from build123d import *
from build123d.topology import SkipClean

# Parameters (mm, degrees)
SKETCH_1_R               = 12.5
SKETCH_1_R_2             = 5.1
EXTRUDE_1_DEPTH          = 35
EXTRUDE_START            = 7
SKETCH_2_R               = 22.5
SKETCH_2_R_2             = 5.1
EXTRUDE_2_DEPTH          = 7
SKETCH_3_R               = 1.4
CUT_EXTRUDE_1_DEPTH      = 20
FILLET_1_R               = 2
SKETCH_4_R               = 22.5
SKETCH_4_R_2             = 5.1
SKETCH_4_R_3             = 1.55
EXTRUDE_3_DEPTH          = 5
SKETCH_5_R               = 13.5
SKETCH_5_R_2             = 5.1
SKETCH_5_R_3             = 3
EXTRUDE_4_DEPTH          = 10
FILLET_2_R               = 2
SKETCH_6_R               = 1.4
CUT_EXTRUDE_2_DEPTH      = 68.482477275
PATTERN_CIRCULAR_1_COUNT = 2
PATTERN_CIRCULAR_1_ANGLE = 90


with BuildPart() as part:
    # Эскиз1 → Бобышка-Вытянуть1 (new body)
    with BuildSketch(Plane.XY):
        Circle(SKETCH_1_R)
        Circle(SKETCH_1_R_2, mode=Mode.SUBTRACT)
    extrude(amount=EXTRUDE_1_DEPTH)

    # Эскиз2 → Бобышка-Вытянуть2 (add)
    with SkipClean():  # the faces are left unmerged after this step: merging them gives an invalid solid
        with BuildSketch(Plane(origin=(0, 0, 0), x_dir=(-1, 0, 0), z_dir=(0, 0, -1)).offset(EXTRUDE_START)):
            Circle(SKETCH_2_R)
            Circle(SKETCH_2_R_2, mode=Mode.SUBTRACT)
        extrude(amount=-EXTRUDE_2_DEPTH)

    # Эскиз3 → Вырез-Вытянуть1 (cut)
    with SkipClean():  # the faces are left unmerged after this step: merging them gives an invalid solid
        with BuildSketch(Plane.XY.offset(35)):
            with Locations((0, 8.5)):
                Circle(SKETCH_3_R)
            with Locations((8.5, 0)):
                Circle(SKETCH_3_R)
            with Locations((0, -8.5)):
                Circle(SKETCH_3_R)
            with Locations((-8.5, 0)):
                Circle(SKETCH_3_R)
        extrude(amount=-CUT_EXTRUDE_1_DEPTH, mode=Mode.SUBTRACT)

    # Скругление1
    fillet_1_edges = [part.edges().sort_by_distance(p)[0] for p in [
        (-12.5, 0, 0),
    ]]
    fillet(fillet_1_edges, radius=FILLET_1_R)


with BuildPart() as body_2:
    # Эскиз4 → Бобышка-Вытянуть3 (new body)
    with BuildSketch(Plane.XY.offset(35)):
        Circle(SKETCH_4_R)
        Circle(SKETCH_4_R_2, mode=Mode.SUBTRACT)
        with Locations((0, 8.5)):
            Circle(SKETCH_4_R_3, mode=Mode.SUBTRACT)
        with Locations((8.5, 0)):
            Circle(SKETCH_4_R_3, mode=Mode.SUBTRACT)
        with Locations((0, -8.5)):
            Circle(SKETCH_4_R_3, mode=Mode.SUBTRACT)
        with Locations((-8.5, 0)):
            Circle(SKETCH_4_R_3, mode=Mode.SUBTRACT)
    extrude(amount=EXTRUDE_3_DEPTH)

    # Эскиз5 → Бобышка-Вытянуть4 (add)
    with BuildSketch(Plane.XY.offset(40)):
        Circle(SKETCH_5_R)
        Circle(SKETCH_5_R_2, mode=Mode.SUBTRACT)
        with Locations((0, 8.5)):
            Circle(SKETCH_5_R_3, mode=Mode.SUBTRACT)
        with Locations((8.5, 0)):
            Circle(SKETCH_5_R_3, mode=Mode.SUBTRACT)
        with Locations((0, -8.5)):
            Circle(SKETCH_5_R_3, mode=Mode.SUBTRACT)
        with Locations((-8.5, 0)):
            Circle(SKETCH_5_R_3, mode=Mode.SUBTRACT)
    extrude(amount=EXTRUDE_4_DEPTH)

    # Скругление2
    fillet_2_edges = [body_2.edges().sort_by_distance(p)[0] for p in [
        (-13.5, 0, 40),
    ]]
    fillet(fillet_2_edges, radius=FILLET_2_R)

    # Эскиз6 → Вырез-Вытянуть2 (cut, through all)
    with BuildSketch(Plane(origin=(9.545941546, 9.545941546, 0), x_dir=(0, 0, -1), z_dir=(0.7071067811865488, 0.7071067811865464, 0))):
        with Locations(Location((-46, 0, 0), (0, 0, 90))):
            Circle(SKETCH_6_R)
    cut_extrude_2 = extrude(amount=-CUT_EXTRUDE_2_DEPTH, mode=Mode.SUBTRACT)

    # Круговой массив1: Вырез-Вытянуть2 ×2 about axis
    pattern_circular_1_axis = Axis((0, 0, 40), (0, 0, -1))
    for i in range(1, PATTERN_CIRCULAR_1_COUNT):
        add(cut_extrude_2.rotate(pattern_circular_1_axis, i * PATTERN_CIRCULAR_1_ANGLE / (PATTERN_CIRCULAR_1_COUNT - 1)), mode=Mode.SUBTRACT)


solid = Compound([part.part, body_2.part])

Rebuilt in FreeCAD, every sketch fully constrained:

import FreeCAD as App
import Part
import Sketcher
from FreeCAD import Vector
Q = App.Units.Quantity


def edges_at(feature, points):
    """Names of the edges that pass closest to the given points."""
    edges = feature.Shape.Edges
    near = lambda p: min(range(len(edges)), key=lambda i: edges[i].distToShape(Part.Vertex(*p))[0])
    return sorted({f"Edge{near(p) + 1}" for p in points})

doc = App.newDocument("Part")
body = doc.addObject("PartDesign::Body", "Body")

# Sketch on XY plane
sketch1 = body.newObject("Sketcher::SketchObject", "Sketch")
sketch1.AttachmentSupport = (doc.getObject("XY_Plane"), [""])
sketch1.MapMode = "FlatFace"
sketch1.addGeometry(Part.Circle(Vector(0, 0, 0), Vector(0, 0, 1), 12), False)
sketch1.addGeometry(Part.Circle(Vector(0, 0, 0), Vector(0, 0, 1), 5), False)
sketch1.addConstraint(Sketcher.Constraint("Coincident", 0, 3, -1, 1))
sketch1.addConstraint(Sketcher.Constraint("Coincident", 1, 3, -1, 1))
sketch1.addConstraint(Sketcher.Constraint("Diameter", 0, Q("25 mm")))
sketch1.addConstraint(Sketcher.Constraint("Diameter", 1, Q("10.2 mm")))
pad1 = body.newObject("PartDesign::Pad", "Pad")
pad1.Profile = sketch1
pad1.Length = 35

# Sketch on XY plane
sketch2 = body.newObject("Sketcher::SketchObject", "Sketch001")
sketch2.AttachmentSupport = (doc.getObject("XY_Plane"), [""])
sketch2.MapMode = "FlatFace"
sketch2.AttachmentOffset = App.Placement(Vector(0, 0, -7), App.Rotation())
sketch2.addGeometry(Part.Circle(Vector(0, 0, 0), Vector(0, 0, 1), 22), False)
sketch2.addGeometry(Part.Circle(Vector(0, 0, 0), Vector(0, 0, 1), 5), False)
sketch2.addConstraint(Sketcher.Constraint("Coincident", 0, 3, -1, 1))
sketch2.addConstraint(Sketcher.Constraint("Coincident", 1, 3, -1, 1))
sketch2.addConstraint(Sketcher.Constraint("Diameter", 0, Q("45 mm")))
sketch2.addConstraint(Sketcher.Constraint("Diameter", 1, Q("10.2 mm")))
pad2 = body.newObject("PartDesign::Pad", "Pad001")
pad2.Profile = sketch2
pad2.Length = 7

# Sketch on XY plane
sketch3 = body.newObject("Sketcher::SketchObject", "Sketch002")
sketch3.AttachmentSupport = (doc.getObject("XY_Plane"), [""])
sketch3.MapMode = "FlatFace"
sketch3.AttachmentOffset = App.Placement(Vector(0, 0, 35), App.Rotation())
sketch3.addGeometry(Part.Circle(Vector(0, 8.5, 0), Vector(0, 0, 1), 1.4), False)
sketch3.addGeometry(Part.Circle(Vector(8.5, 0, 0), Vector(0, 0, 1), 1.4), False)
sketch3.addGeometry(Part.Circle(Vector(0, -8.5, 0), Vector(0, 0, 1), 1.4), False)
sketch3.addGeometry(Part.Circle(Vector(-8.5, 0, 0), Vector(0, 0, 1), 1.4), False)
sketch3.addConstraint(Sketcher.Constraint("Equal", 0, 1))
sketch3.addConstraint(Sketcher.Constraint("Equal", 1, 2))
sketch3.addConstraint(Sketcher.Constraint("Equal", 2, 3))
sketch3.addConstraint(Sketcher.Constraint("Symmetric", 0, 3, 2, 3, -1, 1))
sketch3.addConstraint(Sketcher.Constraint("Symmetric", 1, 3, 3, 3, -1, 1))
sketch3.addConstraint(Sketcher.Constraint("PointOnObject", 0, 3, -2))
sketch3.addConstraint(Sketcher.Constraint("PointOnObject", 1, 3, -1))
sketch3.addConstraint(Sketcher.Constraint("Diameter", 0, Q("2.8 mm")))
sketch3.addConstraint(Sketcher.Constraint("DistanceY", 2, 3, 0, 3, Q("17 mm")))
sketch3.addConstraint(Sketcher.Constraint("DistanceX", 3, 3, 1, 3, Q("17 mm")))
pocket1 = body.newObject("PartDesign::Pocket", "Pocket")
pocket1.Profile = sketch3
pocket1.Length = 20
doc.recompute()

fillet = body.newObject("PartDesign::Fillet", "Fillet")
fillet.Base = (pocket1, edges_at(pocket1, [(-12.5, 0, 0)]))
fillet.Radius = 2
body2 = doc.addObject("PartDesign::Body", "Body001")

# Sketch on XY plane
sketch4 = body2.newObject("Sketcher::SketchObject", "Sketch003")
sketch4.AttachmentSupport = (doc.getObject("XY_Plane001"), [""])
sketch4.MapMode = "FlatFace"
sketch4.AttachmentOffset = App.Placement(Vector(0, 0, 35), App.Rotation())
sketch4.addGeometry(Part.Circle(Vector(0, 0, 0), Vector(0, 0, 1), 22.5), False)
sketch4.addGeometry(Part.Circle(Vector(0, -8.5, 0), Vector(0, 0, 1), 1.6), False)
sketch4.addGeometry(Part.Circle(Vector(-8.5, 0, 0), Vector(0, 0, 1), 1.6), False)
sketch4.addGeometry(Part.Circle(Vector(0, 0, 0), Vector(0, 0, 1), 5.1), False)
sketch4.addGeometry(Part.Circle(Vector(0, 8.5, 0), Vector(0, 0, 1), 1.6), False)
sketch4.addGeometry(Part.Circle(Vector(8.5, 0, 0), Vector(0, 0, 1), 1.6), False)
sketch4.addConstraint(Sketcher.Constraint("Coincident", 0, 3, -1, 1))
sketch4.addConstraint(Sketcher.Constraint("Coincident", 3, 3, -1, 1))
sketch4.addConstraint(Sketcher.Constraint("Equal", 1, 2))
sketch4.addConstraint(Sketcher.Constraint("Equal", 2, 4))
sketch4.addConstraint(Sketcher.Constraint("Equal", 4, 5))
sketch4.addConstraint(Sketcher.Constraint("Symmetric", 1, 3, 4, 3, -1, 1))
sketch4.addConstraint(Sketcher.Constraint("Symmetric", 2, 3, 5, 3, -1, 1))
sketch4.addConstraint(Sketcher.Constraint("PointOnObject", 1, 3, -2))
sketch4.addConstraint(Sketcher.Constraint("PointOnObject", 2, 3, -1))
sketch4.addConstraint(Sketcher.Constraint("Diameter", 0, Q("45 mm")))
sketch4.addConstraint(Sketcher.Constraint("Diameter", 1, Q("3.1 mm")))
sketch4.addConstraint(Sketcher.Constraint("Diameter", 3, Q("10.2 mm")))
sketch4.addConstraint(Sketcher.Constraint("DistanceY", 1, 3, 4, 3, Q("17 mm")))
sketch4.addConstraint(Sketcher.Constraint("DistanceX", 2, 3, 5, 3, Q("17 mm")))
pad3 = body2.newObject("PartDesign::Pad", "Pad002")
pad3.Profile = sketch4
pad3.Length = 5

# Sketch on XY plane
sketch5 = body2.newObject("Sketcher::SketchObject", "Sketch004")
sketch5.AttachmentSupport = (doc.getObject("XY_Plane001"), [""])
sketch5.MapMode = "FlatFace"
sketch5.AttachmentOffset = App.Placement(Vector(0, 0, 40), App.Rotation())
sketch5.addGeometry(Part.Circle(Vector(0, 0, 0), Vector(0, 0, 1), 13.5), False)
sketch5.addGeometry(Part.Circle(Vector(0, -8.5, 0), Vector(0, 0, 1), 3), False)
sketch5.addGeometry(Part.Circle(Vector(-8.5, 0, 0), Vector(0, 0, 1), 3), False)
sketch5.addGeometry(Part.Circle(Vector(0, 0, 0), Vector(0, 0, 1), 5.1), False)
sketch5.addGeometry(Part.Circle(Vector(8.5, 0, 0), Vector(0, 0, 1), 3), False)
sketch5.addGeometry(Part.Circle(Vector(0, 8.5, 0), Vector(0, 0, 1), 3), False)
sketch5.addConstraint(Sketcher.Constraint("Coincident", 0, 3, -1, 1))
sketch5.addConstraint(Sketcher.Constraint("Coincident", 3, 3, -1, 1))
sketch5.addConstraint(Sketcher.Constraint("Equal", 1, 2))
sketch5.addConstraint(Sketcher.Constraint("Equal", 2, 4))
sketch5.addConstraint(Sketcher.Constraint("Equal", 4, 5))
sketch5.addConstraint(Sketcher.Constraint("Symmetric", 2, 3, 4, 3, -1, 1))
sketch5.addConstraint(Sketcher.Constraint("Symmetric", 1, 3, 5, 3, -1, 1))
sketch5.addConstraint(Sketcher.Constraint("PointOnObject", 1, 3, -2))
sketch5.addConstraint(Sketcher.Constraint("PointOnObject", 2, 3, -1))
sketch5.addConstraint(Sketcher.Constraint("Diameter", 0, Q("27 mm")))
sketch5.addConstraint(Sketcher.Constraint("Diameter", 1, Q("6 mm")))
sketch5.addConstraint(Sketcher.Constraint("Diameter", 3, Q("10.2 mm")))
sketch5.addConstraint(Sketcher.Constraint("DistanceX", 2, 3, 4, 3, Q("17 mm")))
sketch5.addConstraint(Sketcher.Constraint("DistanceY", 1, 3, 5, 3, Q("17 mm")))
pad4 = body2.newObject("PartDesign::Pad", "Pad003")
pad4.Profile = sketch5
pad4.Length = 10
doc.recompute()

fillet2 = body2.newObject("PartDesign::Fillet", "Fillet001")
fillet2.Base = (pad4, edges_at(pad4, [(-13.5, 0, 40)]))
fillet2.Radius = 2

# Sketch on an angled plane
sketch6 = body2.newObject("Sketcher::SketchObject", "Sketch005")
sketch6.Placement = App.Placement(Vector(9.545942, 9.545942, 0), App.Rotation(Vector(0, 0, -1), Vector(-0.707106781, 0.707106781, 0), Vector(0.707106781, 0.707106781, 0), "ZXY"))
sketch6.addGeometry(Part.Circle(Vector(-46, 0, 0), Vector(0, 0, 1), 1.4), False)
sketch6.addConstraint(Sketcher.Constraint("PointOnObject", 0, 3, -1))
sketch6.addConstraint(Sketcher.Constraint("Diameter", 0, Q("2.8 mm")))
sketch6.addConstraint(Sketcher.Constraint("DistanceX", 0, 3, -1, 1, Q("46 mm")))
pocket2 = body2.newObject("PartDesign::Pocket", "Pocket001")
pocket2.Profile = sketch6
pocket2.Type = "ThroughAll"
doc.recompute()

polarpattern = body2.newObject("PartDesign::PolarPattern", "PolarPattern")
polarpattern.Originals = [pocket2]
polarpattern.Axis = (doc.getObject("Z_Axis001"), [""])
polarpattern.Angle = 90
polarpattern.Occurrences = 2
polarpattern.Reversed = True
body2.Tip = polarpattern

doc.recompute()
